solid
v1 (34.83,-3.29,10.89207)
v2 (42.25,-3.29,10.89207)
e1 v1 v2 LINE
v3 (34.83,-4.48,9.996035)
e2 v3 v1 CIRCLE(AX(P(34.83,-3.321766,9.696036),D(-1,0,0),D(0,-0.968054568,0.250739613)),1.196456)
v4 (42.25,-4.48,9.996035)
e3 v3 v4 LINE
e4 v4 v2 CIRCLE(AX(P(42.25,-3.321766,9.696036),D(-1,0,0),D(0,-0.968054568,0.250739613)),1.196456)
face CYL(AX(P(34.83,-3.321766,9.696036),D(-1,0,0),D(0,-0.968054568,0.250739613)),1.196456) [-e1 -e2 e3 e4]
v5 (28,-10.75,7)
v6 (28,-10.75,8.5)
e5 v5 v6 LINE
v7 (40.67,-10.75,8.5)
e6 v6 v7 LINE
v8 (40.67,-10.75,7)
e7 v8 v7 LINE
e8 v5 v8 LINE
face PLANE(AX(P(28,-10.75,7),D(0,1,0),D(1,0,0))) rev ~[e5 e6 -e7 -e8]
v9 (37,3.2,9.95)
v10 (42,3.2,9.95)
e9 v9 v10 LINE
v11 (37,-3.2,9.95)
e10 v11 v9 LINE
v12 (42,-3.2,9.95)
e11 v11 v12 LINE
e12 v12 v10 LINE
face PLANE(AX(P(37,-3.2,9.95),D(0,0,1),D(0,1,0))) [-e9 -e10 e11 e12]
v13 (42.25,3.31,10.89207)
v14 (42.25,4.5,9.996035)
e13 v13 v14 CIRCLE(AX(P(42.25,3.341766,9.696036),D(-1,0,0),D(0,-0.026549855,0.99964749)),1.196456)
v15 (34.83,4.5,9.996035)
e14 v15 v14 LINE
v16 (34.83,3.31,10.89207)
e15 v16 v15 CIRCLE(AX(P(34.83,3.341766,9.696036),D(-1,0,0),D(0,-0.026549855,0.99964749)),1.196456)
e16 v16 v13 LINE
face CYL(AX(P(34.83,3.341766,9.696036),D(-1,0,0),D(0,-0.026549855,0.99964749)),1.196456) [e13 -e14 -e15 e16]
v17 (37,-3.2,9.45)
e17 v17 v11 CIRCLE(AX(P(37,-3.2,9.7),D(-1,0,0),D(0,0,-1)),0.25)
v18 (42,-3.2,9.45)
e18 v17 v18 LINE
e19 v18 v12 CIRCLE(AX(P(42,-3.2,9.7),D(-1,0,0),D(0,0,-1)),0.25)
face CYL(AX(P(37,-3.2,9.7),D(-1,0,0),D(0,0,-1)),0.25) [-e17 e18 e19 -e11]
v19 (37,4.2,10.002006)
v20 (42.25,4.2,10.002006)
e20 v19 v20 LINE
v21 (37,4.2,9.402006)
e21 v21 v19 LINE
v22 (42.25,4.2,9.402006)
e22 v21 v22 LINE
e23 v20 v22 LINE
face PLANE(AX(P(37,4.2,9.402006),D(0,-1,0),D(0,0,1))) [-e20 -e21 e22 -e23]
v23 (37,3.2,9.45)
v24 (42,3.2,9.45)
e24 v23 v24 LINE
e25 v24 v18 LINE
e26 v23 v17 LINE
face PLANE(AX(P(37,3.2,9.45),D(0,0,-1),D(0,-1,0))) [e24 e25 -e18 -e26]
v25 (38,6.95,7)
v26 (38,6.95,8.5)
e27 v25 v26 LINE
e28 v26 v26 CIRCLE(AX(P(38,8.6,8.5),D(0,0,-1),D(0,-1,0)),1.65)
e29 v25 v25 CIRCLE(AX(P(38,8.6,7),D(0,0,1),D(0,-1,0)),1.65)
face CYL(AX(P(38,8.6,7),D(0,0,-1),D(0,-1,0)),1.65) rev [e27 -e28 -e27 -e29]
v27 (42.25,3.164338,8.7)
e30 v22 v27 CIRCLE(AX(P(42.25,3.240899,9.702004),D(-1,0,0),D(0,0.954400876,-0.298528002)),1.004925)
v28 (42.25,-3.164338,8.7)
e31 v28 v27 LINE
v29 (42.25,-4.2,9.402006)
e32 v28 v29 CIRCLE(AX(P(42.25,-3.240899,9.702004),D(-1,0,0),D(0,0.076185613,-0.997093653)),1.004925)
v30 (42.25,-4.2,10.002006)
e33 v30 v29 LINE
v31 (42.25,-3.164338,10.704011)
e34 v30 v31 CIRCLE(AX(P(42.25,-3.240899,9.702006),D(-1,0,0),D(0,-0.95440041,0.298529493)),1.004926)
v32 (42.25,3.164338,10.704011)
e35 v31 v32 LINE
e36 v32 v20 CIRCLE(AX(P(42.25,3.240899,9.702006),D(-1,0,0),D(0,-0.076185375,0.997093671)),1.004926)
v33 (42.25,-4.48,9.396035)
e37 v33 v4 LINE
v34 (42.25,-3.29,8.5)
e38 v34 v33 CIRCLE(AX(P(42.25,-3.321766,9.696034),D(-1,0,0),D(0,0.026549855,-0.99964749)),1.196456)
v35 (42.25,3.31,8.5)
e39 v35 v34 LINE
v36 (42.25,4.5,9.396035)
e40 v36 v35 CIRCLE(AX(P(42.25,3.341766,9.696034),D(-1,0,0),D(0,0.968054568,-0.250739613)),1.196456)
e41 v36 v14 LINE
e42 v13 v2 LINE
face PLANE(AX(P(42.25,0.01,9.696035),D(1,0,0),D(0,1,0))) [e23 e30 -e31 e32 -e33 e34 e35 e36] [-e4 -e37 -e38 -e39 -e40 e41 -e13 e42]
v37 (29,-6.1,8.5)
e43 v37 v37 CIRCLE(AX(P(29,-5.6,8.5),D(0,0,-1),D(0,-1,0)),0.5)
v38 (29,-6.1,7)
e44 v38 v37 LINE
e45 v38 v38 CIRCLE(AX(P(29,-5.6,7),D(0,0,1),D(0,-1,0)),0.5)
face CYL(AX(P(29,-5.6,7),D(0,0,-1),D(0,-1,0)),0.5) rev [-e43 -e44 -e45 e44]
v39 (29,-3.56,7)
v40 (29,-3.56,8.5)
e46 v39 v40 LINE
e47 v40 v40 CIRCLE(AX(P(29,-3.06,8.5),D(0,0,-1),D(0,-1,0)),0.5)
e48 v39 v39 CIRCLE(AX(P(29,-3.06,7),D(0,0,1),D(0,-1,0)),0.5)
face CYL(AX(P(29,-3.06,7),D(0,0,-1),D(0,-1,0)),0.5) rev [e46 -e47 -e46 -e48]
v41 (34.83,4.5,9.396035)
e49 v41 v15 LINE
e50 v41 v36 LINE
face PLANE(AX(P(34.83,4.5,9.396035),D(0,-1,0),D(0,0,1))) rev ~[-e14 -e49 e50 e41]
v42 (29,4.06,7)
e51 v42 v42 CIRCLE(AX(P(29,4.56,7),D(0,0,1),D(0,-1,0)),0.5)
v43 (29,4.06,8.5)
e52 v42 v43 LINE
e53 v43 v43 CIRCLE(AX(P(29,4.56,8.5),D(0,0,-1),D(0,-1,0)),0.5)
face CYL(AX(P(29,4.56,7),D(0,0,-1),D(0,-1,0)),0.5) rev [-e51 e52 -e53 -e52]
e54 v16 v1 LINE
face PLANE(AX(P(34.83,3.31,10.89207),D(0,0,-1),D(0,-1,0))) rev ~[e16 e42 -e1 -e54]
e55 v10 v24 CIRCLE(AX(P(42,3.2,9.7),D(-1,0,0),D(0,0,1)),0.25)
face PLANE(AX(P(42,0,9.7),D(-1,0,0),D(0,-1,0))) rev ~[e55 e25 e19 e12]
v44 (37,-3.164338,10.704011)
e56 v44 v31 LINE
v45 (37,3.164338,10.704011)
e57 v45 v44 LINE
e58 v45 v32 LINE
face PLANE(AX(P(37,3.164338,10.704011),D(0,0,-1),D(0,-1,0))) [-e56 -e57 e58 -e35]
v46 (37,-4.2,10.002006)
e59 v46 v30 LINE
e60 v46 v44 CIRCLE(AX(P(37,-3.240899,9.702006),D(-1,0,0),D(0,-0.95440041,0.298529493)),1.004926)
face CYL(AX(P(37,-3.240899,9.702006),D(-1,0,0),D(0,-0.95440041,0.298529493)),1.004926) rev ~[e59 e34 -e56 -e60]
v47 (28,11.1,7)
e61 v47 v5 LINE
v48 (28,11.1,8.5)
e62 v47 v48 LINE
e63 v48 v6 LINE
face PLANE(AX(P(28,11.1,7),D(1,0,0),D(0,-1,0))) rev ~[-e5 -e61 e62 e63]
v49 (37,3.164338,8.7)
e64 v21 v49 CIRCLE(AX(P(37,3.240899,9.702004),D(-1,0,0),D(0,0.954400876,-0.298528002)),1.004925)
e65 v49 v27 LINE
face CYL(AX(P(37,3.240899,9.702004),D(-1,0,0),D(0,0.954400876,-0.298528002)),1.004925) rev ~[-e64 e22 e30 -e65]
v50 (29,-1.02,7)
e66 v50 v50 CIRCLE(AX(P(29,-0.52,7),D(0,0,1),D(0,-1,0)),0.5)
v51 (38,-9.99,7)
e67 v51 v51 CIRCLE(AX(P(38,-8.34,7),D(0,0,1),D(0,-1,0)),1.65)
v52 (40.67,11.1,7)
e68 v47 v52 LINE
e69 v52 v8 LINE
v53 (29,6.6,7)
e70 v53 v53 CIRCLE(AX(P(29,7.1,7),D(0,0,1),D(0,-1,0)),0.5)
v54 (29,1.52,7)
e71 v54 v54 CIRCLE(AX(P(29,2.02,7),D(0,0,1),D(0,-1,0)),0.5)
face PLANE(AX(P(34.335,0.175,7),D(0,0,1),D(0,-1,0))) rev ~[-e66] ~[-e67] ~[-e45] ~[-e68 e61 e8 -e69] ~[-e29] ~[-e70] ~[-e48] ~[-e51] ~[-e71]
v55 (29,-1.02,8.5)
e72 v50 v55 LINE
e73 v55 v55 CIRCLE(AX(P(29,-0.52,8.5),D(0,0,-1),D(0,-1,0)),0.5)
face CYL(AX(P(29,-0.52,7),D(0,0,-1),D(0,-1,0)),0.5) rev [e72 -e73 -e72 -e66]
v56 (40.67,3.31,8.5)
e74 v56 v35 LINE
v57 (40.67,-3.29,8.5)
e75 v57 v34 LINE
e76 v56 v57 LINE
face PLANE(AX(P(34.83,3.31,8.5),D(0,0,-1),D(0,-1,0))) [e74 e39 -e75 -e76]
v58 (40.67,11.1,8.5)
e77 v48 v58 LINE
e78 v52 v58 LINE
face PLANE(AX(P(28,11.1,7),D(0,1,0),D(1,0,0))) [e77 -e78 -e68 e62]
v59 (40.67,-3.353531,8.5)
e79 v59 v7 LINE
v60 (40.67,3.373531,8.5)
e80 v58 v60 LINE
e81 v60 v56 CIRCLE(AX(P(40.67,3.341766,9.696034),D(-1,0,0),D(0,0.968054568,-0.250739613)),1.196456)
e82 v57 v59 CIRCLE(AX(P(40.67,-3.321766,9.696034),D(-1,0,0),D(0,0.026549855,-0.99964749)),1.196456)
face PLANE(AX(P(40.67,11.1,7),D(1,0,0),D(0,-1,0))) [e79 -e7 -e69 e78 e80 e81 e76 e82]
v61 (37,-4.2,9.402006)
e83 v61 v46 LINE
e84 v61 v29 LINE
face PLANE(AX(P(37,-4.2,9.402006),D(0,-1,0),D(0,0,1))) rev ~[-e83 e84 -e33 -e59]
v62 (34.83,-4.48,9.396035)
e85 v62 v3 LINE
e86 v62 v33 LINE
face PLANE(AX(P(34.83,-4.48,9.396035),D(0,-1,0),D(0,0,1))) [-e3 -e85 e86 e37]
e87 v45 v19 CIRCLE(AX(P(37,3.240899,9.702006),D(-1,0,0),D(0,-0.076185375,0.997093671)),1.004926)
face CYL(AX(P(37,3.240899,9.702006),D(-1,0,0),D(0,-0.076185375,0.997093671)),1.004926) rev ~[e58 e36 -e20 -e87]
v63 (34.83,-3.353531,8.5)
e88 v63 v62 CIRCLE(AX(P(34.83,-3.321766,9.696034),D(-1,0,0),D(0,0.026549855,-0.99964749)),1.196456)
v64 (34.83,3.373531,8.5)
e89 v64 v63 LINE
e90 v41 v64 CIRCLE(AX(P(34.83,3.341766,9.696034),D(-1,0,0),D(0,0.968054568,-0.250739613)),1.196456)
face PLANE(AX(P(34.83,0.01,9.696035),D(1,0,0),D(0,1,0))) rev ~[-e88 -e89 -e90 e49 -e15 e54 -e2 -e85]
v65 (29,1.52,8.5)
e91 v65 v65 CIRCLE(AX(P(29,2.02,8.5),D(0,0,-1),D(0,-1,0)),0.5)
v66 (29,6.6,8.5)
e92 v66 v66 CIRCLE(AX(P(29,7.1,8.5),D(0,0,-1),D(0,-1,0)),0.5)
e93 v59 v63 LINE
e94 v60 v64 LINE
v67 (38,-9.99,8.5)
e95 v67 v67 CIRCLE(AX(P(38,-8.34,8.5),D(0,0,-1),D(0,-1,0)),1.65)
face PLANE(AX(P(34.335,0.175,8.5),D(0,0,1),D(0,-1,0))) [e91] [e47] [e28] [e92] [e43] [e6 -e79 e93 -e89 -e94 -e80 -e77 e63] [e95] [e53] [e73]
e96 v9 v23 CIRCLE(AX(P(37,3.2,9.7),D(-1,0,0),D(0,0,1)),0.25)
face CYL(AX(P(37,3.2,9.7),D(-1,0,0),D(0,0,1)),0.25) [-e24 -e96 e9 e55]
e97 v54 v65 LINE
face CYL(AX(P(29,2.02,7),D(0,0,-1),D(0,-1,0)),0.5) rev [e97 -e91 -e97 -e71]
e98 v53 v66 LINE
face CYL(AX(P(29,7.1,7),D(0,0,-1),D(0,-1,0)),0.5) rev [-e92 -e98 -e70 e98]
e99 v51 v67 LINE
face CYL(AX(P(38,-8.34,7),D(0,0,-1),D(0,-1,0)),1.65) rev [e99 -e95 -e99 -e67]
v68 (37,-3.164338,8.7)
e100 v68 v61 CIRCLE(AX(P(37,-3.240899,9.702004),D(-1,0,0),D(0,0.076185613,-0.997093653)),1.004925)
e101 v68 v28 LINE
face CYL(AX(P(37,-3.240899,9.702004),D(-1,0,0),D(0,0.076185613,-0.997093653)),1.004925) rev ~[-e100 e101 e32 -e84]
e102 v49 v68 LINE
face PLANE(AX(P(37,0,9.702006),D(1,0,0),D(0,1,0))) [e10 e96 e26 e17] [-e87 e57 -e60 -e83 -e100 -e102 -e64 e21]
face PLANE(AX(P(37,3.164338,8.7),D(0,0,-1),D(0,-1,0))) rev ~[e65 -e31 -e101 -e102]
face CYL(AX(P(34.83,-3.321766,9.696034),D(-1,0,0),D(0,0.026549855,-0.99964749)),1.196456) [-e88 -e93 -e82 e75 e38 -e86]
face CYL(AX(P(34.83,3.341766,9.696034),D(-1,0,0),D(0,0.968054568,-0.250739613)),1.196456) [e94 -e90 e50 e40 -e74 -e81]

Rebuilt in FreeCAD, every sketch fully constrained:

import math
import FreeCAD as App
import Part
import Sketcher

V = App.Vector

doc = App.newDocument("Part")
params = doc.addObject("Spreadsheet::Sheet", "Params")
for row, (alias, value) in enumerate([
    ("sketch1_width", "21.85 mm"),
    ("sketch1_height", "12.67 mm"),
    ("pad1_length", "1.5 mm"),
    ("sketch2_width", "6.6 mm"),
    ("sketch2_height", "0.6 mm"),
    ("pad2_length", "7.42 mm"),
    ("sketch3_diameter", "3.3 mm"),
    ("pocket1_length", "5 mm"),
    ("sketch4_diameter", "1 mm"),
    ("pocket2_length", "5 mm"),
    ("sketch5_height", "0.6 mm"),
    ("pocket3_length", "6 mm"),
    ("sketch6_radius", "0.25 mm"),
    ("sketch6_width", "6.4 mm"),
    ("pad3_length", "5 mm"),
], start=1):
    params.set(f"A{row}", alias)
    params.set(f"B{row}", "=" + value)
    params.setAlias(f"B{row}", alias)

body = doc.addObject("PartDesign::Body", "Body")

sketch1 = body.newObject("Sketcher::SketchObject", "Sketch")
sketch1.AttachmentSupport = (doc.getObject("XY_Plane"), [""])
sketch1.MapMode = "FlatFace"
sketch1.addGeometry(Part.LineSegment(V(0, 13, 0), V(0, 0, 0)), False)
sketch1.addGeometry(Part.LineSegment(V(0, 0, 0), V(22, 0, 0)), False)
sketch1.addGeometry(Part.LineSegment(V(22, 0, 0), V(22, 13, 0)), False)
sketch1.addGeometry(Part.LineSegment(V(22, 13, 0), V(0, 13, 0)), False)
sketch1.addConstraint(Sketcher.Constraint("Coincident", 0, 2, 1, 1))
sketch1.addConstraint(Sketcher.Constraint("Coincident", 1, 2, 2, 1))
sketch1.addConstraint(Sketcher.Constraint("Coincident", 2, 2, 3, 1))
sketch1.addConstraint(Sketcher.Constraint("Coincident", 3, 2, 0, 1))
sketch1.addConstraint(Sketcher.Constraint("Vertical", 0))
sketch1.addConstraint(Sketcher.Constraint("Horizontal", 1))
sketch1.addConstraint(Sketcher.Constraint("Vertical", 2))
sketch1.addConstraint(Sketcher.Constraint("Horizontal", 3))
sketch1.addConstraint(Sketcher.Constraint("Coincident", 0, 2, -1, 1))
sketch1.addConstraint(Sketcher.Constraint("DistanceX", 1, 1, 1, 2, 21.85))
sketch1.addConstraint(Sketcher.Constraint("DistanceY", 0, 2, 0, 1, 12.67))
sketch1.setExpression("Constraints[9]", "Params.sketch1_width")
sketch1.setExpression("Constraints[10]", "Params.sketch1_height")
pad1 = body.newObject("PartDesign::Pad", "Pad")
pad1.Profile = sketch1
pad1.setExpression("Length", "Params.pad1_length")

sketch2 = body.newObject("Sketcher::SketchObject", "Sketch001")
sketch2.AttachmentSupport = (doc.getObject("XZ_Plane"), [""])
sketch2.MapMode = "FlatFace"
sketch2.AttachmentOffset = App.Placement(V(0, 0, -6.83), App.Rotation())
sketch2.addGeometry(Part.LineSegment(V(6.6, 3, 0), V(6.6, 2.4, 0)), False)
sketch2.addGeometry(Part.ArcOfCircle(Part.Circle(V(7.8, 2.7, 0), V(0, 0, 1), 1.2), math.radians(-165), math.radians(-88)), False)
sketch2.addGeometry(Part.LineSegment(V(7.8, 1.5, 0), V(14.4, 1.5, 0)), False)
sketch2.addGeometry(Part.ArcOfCircle(Part.Circle(V(14.4, 2.7, 0), V(0, 0, 1), 1.2), math.radians(-92), math.radians(-15)), False)
sketch2.addGeometry(Part.LineSegment(V(15.6, 2.4, 0), V(15.6, 3, 0)), False)
sketch2.addGeometry(Part.ArcOfCircle(Part.Circle(V(14.4, 2.7, 0), V(0, 0, 1), 1.2), math.radians(15), math.radians(92)), False)
sketch2.addGeometry(Part.LineSegment(V(14.4, 3.9, 0), V(7.8, 3.9, 0)), False)
sketch2.addGeometry(Part.ArcOfCircle(Part.Circle(V(7.8, 2.7, 0), V(0, 0, 1), 1.2), math.radians(88), math.radians(165)), False)
sketch2.addConstraint(Sketcher.Constraint("Coincident", 0, 2, 1, 1))
sketch2.addConstraint(Sketcher.Constraint("Coincident", 1, 2, 2, 1))
sketch2.addConstraint(Sketcher.Constraint("Coincident", 2, 2, 3, 1))
sketch2.addConstraint(Sketcher.Constraint("Coincident", 3, 2, 4, 1))
sketch2.addConstraint(Sketcher.Constraint("Coincident", 4, 2, 5, 1))
sketch2.addConstraint(Sketcher.Constraint("Coincident", 5, 2, 6, 1))
sketch2.addConstraint(Sketcher.Constraint("Coincident", 6, 2, 7, 1))
sketch2.addConstraint(Sketcher.Constraint("Coincident", 7, 2, 0, 1))
sketch2.addConstraint(Sketcher.Constraint("Vertical", 0))
sketch2.addConstraint(Sketcher.Constraint("Horizontal", 2))
sketch2.addConstraint(Sketcher.Constraint("Vertical", 4))
sketch2.addConstraint(Sketcher.Constraint("Horizontal", 6))
sketch2.addConstraint(Sketcher.Constraint("Coincident", 5, 3, 3, 3))
sketch2.addConstraint(Sketcher.Constraint("Coincident", 7, 3, 1, 3))
sketch2.addConstraint(Sketcher.Constraint("Equal", 1, 3))
sketch2.addConstraint(Sketcher.Constraint("Equal", 3, 5))
sketch2.addConstraint(Sketcher.Constraint("Equal", 5, 7))
sketch2.addConstraint(Sketcher.Constraint("Horizontal", 1, 3, 3, 3))
sketch2.addConstraint(Sketcher.Constraint("Horizontal", 0, 2, 3, 2))
sketch2.addConstraint(Sketcher.Constraint("Vertical", 2, 2, 5, 2))
sketch2.addConstraint(Sketcher.Constraint("DistanceX", 2, 1, 2, 2, 6.6))
sketch2.addConstraint(Sketcher.Constraint("DistanceY", 0, 2, 0, 1, 0.6))
sketch2.addConstraint(Sketcher.Constraint("DistanceX", -1, 1, 0, 2, 6.6))
sketch2.addConstraint(Sketcher.Constraint("DistanceY", -1, 1, 1, 2, 1.5))
sketch2.addConstraint(Sketcher.Constraint("DistanceX", -1, 1, 1, 2, 7.79))
sketch2.addConstraint(Sketcher.Constraint("Radius", 1, 1.196456))
sketch2.setExpression("Constraints[20]", "Params.sketch2_width")
sketch2.setExpression("Constraints[21]", "Params.sketch2_height")
pad2 = body.newObject("PartDesign::Pad", "Pad001")
pad2.Profile = sketch2
pad2.setExpression("Length", "Params.pad2_length")
pad2.Reversed = True

sketch3 = body.newObject("Sketcher::SketchObject", "Sketch002")
sketch3.AttachmentSupport = (doc.getObject("XY_Plane"), [""])
sketch3.MapMode = "FlatFace"
sketch3.addGeometry(Part.Circle(V(2.5, 10, 0), V(0, 0, 1), 1.6), False)
sketch3.addGeometry(Part.Circle(V(19.4, 10, 0), V(0, 0, 1), 1.6), False)
sketch3.addConstraint(Sketcher.Constraint("Equal", 0, 1))
sketch3.addConstraint(Sketcher.Constraint("Horizontal", 0, 3, 1, 3))
sketch3.addConstraint(Sketcher.Constraint("Diameter", 0, 3.3))
sketch3.addConstraint(Sketcher.Constraint("DistanceY", -1, 1, 0, 3, 10.0))
sketch3.addConstraint(Sketcher.Constraint("DistanceX", -1, 1, 0, 3, 2.5))
sketch3.addConstraint(Sketcher.Constraint("DistanceX", -1, 1, 1, 3, 19.44))
sketch3.setExpression("Constraints[2]", "Params.sketch3_diameter")
pocket1 = body.newObject("PartDesign::Pocket", "Pocket")
pocket1.Profile = sketch3
pocket1.setExpression("Length", "Params.pocket1_length")
pocket1.Reversed = True

sketch4 = body.newObject("Sketcher::SketchObject", "Sketch003")
sketch4.AttachmentSupport = (doc.getObject("XY_Plane"), [""])
sketch4.MapMode = "FlatFace"
sketch4.addGeometry(Part.Circle(V(4, 1, 0), V(0, 0, 1), 0.5), False)
sketch4.addGeometry(Part.Circle(V(6.5, 1, 0), V(0, 0, 1), 0.5), False)
sketch4.addGeometry(Part.Circle(V(9.1, 1, 0), V(0, 0, 1), 0.5), False)
sketch4.addGeometry(Part.Circle(V(11.6, 1, 0), V(0, 0, 1), 0.5), False)
sketch4.addGeometry(Part.Circle(V(14.2, 1, 0), V(0, 0, 1), 0.5), False)
sketch4.addGeometry(Part.Circle(V(16.7, 1, 0), V(0, 0, 1), 0.5), False)
sketch4.addConstraint(Sketcher.Constraint("Equal", 0, 1))
sketch4.addConstraint(Sketcher.Constraint("Equal", 1, 2))
sketch4.addConstraint(Sketcher.Constraint("Equal", 2, 3))
sketch4.addConstraint(Sketcher.Constraint("Equal", 3, 4))
sketch4.addConstraint(Sketcher.Constraint("Equal", 4, 5))
sketch4.addConstraint(Sketcher.Constraint("Horizontal", 0, 3, 1, 3))
sketch4.addConstraint(Sketcher.Constraint("Horizontal", 1, 3, 2, 3))
sketch4.addConstraint(Sketcher.Constraint("Horizontal", 2, 3, 3, 3))
sketch4.addConstraint(Sketcher.Constraint("Horizontal", 3, 3, 4, 3))
sketch4.addConstraint(Sketcher.Constraint("Horizontal", 4, 3, 5, 3))
sketch4.addConstraint(Sketcher.Constraint("Diameter", 0, 1.0))
sketch4.addConstraint(Sketcher.Constraint("DistanceX", -1, 1, 0, 3, 4.0))
sketch4.addConstraint(Sketcher.Constraint("DistanceY", -1, 1, 0, 3, 1.0))
sketch4.addConstraint(Sketcher.Constraint("DistanceX", -1, 1, 5, 3, 16.7))
sketch4.addConstraint(Sketcher.Constraint("DistanceX", -1, 1, 1, 3, 6.54))
sketch4.addConstraint(Sketcher.Constraint("DistanceX", -1, 1, 2, 3, 9.08))
sketch4.addConstraint(Sketcher.Constraint("DistanceX", -1, 1, 3, 3, 11.62))
sketch4.addConstraint(Sketcher.Constraint("DistanceX", -1, 1, 4, 3, 14.16))
sketch4.setExpression("Constraints[10]", "Params.sketch4_diameter")
pocket2 = body.newObject("PartDesign::Pocket", "Pocket001")
pocket2.Profile = sketch4
pocket2.setExpression("Length", "Params.pocket2_length")
pocket2.Reversed = True

sketch5 = body.newObject("Sketcher::SketchObject", "Sketch004")
sketch5.AttachmentSupport = (doc.getObject("XZ_Plane"), [""])
sketch5.MapMode = "FlatFace"
sketch5.AttachmentOffset = App.Placement(V(0, 0, -9), App.Rotation())
sketch5.addGeometry(Part.LineSegment(V(6.9, 3, 0), V(6.9, 2.4, 0)), False)
sketch5.addGeometry(Part.ArcOfCircle(Part.Circle(V(7.9, 2.7, 0), V(0, 0, 1), 1), math.radians(-163), math.radians(-86)), False)
sketch5.addGeometry(Part.LineSegment(V(7.9, 1.7, 0), V(14.3, 1.7, 0)), False)
sketch5.addGeometry(Part.ArcOfCircle(Part.Circle(V(14.3, 2.7, 0), V(0, 0, 1), 1), math.radians(-94), math.radians(-17)), False)
sketch5.addGeometry(Part.LineSegment(V(15.3, 2.4, 0), V(15.3, 3, 0)), False)
sketch5.addGeometry(Part.ArcOfCircle(Part.Circle(V(14.3, 2.7, 0), V(0, 0, 1), 1), math.radians(17), math.radians(94)), False)
sketch5.addGeometry(Part.LineSegment(V(14.3, 3.7, 0), V(7.9, 3.7, 0)), False)
sketch5.addGeometry(Part.ArcOfCircle(Part.Circle(V(7.9, 2.7, 0), V(0, 0, 1), 1), math.radians(86), math.radians(163)), False)
sketch5.addConstraint(Sketcher.Constraint("Coincident", 0, 2, 1, 1))
sketch5.addConstraint(Sketcher.Constraint("Coincident", 1, 2, 2, 1))
sketch5.addConstraint(Sketcher.Constraint("Coincident", 2, 2, 3, 1))
sketch5.addConstraint(Sketcher.Constraint("Coincident", 3, 2, 4, 1))
sketch5.addConstraint(Sketcher.Constraint("Coincident", 4, 2, 5, 1))
sketch5.addConstraint(Sketcher.Constraint("Coincident", 5, 2, 6, 1))
sketch5.addConstraint(Sketcher.Constraint("Coincident", 6, 2, 7, 1))
sketch5.addConstraint(Sketcher.Constraint("Coincident", 7, 2, 0, 1))
sketch5.addConstraint(Sketcher.Constraint("Vertical", 0))
sketch5.addConstraint(Sketcher.Constraint("Horizontal", 2))
sketch5.addConstraint(Sketcher.Constraint("Vertical", 4))
sketch5.addConstraint(Sketcher.Constraint("Horizontal", 6))
sketch5.addConstraint(Sketcher.Constraint("Coincident", 5, 3, 3, 3))
sketch5.addConstraint(Sketcher.Constraint("Coincident", 7, 3, 1, 3))
sketch5.addConstraint(Sketcher.Constraint("Equal", 1, 3))
sketch5.addConstraint(Sketcher.Constraint("Equal", 3, 5))
sketch5.addConstraint(Sketcher.Constraint("Equal", 5, 7))
sketch5.addConstraint(Sketcher.Constraint("Horizontal", 1, 3, 3, 3))
sketch5.addConstraint(Sketcher.Constraint("Horizontal", 0, 2, 3, 2))
sketch5.addConstraint(Sketcher.Constraint("Vertical", 2, 2, 5, 2))
sketch5.addConstraint(Sketcher.Constraint("DistanceY", 0, 2, 0, 1, 0.6))
sketch5.addConstraint(Sketcher.Constraint("DistanceX", -1, 1, 0, 2, 6.9))
sketch5.addConstraint(Sketcher.Constraint("DistanceY", -1, 1, 1, 2, 1.7))
sketch5.addConstraint(Sketcher.Constraint("DistanceX", -1, 1, 3, 2, 15.3))
sketch5.addConstraint(Sketcher.Constraint("Radius", 1, 1.004925))
sketch5.addConstraint(Sketcher.Constraint("DistanceX", 2, 1, 2, 2, 6.328676))
sketch5.setExpression("Constraints[20]", "Params.sketch5_height")
pocket3 = body.newObject("PartDesign::Pocket", "Pocket002")
pocket3.Profile = sketch5
pocket3.setExpression("Length", "Params.pocket3_length")

sketch6 = body.newObject("Sketcher::SketchObject", "Sketch005")
sketch6.AttachmentSupport = (doc.getObject("XZ_Plane"), [""])
sketch6.MapMode = "FlatFace"
sketch6.AttachmentOffset = App.Placement(V(0, 0, -9), App.Rotation())
sketch6.addGeometry(Part.ArcOfCircle(Part.Circle(V(7.9, 2.7, 0), V(0, 0, 1), 0.25), math.radians(90), math.radians(270)), False)
sketch6.addGeometry(Part.LineSegment(V(7.9, 2.45, 0), V(14.3, 2.45, 0)), False)
sketch6.addGeometry(Part.ArcOfCircle(Part.Circle(V(14.3, 2.7, 0), V(0, 0, 1), 0.25), math.radians(-90), math.radians(90)), False)
sketch6.addGeometry(Part.LineSegment(V(14.3, 2.95, 0), V(7.9, 2.95, 0)), False)
sketch6.addConstraint(Sketcher.Constraint("Tangent", 0, 2, 1, 1))
sketch6.addConstraint(Sketcher.Constraint("Tangent", 1, 2, 2, 1))
sketch6.addConstraint(Sketcher.Constraint("Tangent", 2, 2, 3, 1))
sketch6.addConstraint(Sketcher.Constraint("Tangent", 3, 2, 0, 1))
sketch6.addConstraint(Sketcher.Constraint("Horizontal", 1))
sketch6.addConstraint(Sketcher.Constraint("Horizontal", 3))
sketch6.addConstraint(Sketcher.Constraint("Radius", 0, 0.25))
sketch6.addConstraint(Sketcher.Constraint("DistanceX", 1, 1, 1, 2, 6.4))
sketch6.addConstraint(Sketcher.Constraint("DistanceX", -1, 1, 0, 3, 7.9))
sketch6.addConstraint(Sketcher.Constraint("DistanceY", -1, 1, 0, 3, 2.7))
sketch6.setExpression("Constraints[6]", "Params.sketch6_radius")
sketch6.setExpression("Constraints[7]", "Params.sketch6_width")
pad3 = body.newObject("PartDesign::Pad", "Pad002")
pad3.Profile = sketch6
pad3.setExpression("Length", "Params.pad3_length")
pad3.Reversed = True
body2 = doc.addObject("PartDesign::Body", "Body001")
doc.recompute()

body.Placement = App.Placement(V(28, 11.1, 7), App.Rotation(V(0, 0, -1), 90))
boolean = body2.newObject("PartDesign::Boolean", "Boolean")
boolean.Type = "Fuse"
boolean.addObjects([body])

doc.recompute()
